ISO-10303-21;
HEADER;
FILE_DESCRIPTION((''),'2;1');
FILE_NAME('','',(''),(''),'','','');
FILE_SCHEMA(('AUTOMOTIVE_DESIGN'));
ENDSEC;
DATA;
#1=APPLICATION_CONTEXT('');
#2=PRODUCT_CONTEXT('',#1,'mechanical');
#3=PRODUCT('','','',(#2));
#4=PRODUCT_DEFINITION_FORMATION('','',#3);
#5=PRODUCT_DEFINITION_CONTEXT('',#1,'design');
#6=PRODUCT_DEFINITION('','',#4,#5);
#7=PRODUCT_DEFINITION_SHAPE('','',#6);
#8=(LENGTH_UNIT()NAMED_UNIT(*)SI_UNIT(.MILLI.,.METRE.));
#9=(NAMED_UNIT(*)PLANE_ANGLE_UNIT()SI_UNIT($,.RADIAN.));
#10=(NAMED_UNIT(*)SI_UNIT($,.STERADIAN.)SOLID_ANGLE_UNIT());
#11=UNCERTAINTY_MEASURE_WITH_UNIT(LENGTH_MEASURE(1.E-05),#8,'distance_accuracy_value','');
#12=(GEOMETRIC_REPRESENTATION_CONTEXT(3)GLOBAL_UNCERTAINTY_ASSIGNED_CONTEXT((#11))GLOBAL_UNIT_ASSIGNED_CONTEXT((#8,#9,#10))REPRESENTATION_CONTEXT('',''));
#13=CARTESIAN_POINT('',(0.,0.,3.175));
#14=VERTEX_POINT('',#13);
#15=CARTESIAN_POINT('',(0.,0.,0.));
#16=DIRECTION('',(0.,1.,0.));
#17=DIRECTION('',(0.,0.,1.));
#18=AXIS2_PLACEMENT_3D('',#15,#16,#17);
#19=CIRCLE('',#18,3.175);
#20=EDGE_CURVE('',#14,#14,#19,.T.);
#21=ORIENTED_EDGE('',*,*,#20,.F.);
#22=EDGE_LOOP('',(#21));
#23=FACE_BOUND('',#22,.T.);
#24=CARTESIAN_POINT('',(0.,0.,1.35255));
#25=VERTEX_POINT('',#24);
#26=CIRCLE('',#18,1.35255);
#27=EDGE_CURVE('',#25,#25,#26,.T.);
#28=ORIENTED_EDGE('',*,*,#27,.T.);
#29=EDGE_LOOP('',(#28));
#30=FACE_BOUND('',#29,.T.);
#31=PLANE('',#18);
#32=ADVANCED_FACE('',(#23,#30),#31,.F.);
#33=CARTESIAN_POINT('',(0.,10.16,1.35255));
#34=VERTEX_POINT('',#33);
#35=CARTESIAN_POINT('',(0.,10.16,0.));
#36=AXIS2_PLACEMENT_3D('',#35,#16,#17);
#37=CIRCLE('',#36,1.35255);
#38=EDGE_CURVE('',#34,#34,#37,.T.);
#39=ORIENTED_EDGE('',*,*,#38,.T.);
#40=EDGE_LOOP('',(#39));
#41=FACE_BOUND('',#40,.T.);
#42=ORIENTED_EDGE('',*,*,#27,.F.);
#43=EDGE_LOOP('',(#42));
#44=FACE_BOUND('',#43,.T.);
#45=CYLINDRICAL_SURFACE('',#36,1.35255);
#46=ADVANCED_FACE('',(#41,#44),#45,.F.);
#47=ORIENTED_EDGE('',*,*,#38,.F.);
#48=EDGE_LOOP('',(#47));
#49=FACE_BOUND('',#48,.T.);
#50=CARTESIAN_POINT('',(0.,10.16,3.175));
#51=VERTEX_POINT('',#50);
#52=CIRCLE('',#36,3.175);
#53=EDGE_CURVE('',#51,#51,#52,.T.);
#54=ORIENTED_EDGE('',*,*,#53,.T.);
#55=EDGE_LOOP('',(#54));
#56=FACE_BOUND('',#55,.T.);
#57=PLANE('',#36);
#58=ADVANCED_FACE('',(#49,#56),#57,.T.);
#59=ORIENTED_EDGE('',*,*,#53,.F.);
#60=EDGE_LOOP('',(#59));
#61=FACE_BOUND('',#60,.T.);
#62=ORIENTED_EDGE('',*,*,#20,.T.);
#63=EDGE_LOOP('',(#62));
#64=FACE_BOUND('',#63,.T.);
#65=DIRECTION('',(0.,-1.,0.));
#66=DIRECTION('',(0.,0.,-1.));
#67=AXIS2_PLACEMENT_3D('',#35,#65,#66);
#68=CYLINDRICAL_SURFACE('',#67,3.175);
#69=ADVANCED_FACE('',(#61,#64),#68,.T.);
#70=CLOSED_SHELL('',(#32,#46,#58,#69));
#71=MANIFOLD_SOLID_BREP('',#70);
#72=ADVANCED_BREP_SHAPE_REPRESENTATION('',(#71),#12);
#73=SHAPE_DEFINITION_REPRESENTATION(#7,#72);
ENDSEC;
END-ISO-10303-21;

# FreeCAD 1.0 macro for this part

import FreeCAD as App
import Part
import Sketcher
Q = App.Units.Quantity

doc = App.newDocument("Part")
params = doc.addObject("Spreadsheet::Sheet", "Params")
for row, (alias, value) in enumerate([
    ("sketch1_diameter", "0.25 in"),
    ("pad1_length", "0.4 in"),
    ("hole_diameter", "0.1065 in"),
], start=1):
    params.set(f"A{row}", alias)
    params.set(f"B{row}", "=" + value)
    params.setAlias(f"B{row}", alias)

body = doc.addObject("PartDesign::Body", "Body")

sketch1 = doc.addObject("Sketcher::SketchObject", "Sketch")
body.addObject(sketch1)
sketch1.AttachmentSupport = (doc.XZ_Plane, [""])
sketch1.MapMode = "FlatFace"
sketch1.addGeometry(Part.Circle(App.Vector(0, 0, 0), App.Vector(0, 0, 1), 3.2), False)
sketch1.addConstraint([
    Sketcher.Constraint("Coincident", 0, 3, -1, 1),
    Sketcher.Constraint("Diameter", 0, Q("0.25 in")),
])
sketch1.setExpression("Constraints[1]", "Params.sketch1_diameter")
pad1 = doc.addObject("PartDesign::Pad", "Pad")
body.addObject(pad1)
pad1.Profile = sketch1
pad1.setExpression("Length", "Params.pad1_length")
pad1.Reversed = True

sketch2 = doc.addObject("Sketcher::SketchObject", "Sketch001")
body.addObject(sketch2)
sketch2.AttachmentSupport = (doc.XZ_Plane, [""])
sketch2.MapMode = "FlatFace"
sketch2.AttachmentOffset = App.Placement(App.Vector(0, 0, -0.4 * 25.4), App.Rotation())
sketch2.addGeometry(Part.Circle(App.Vector(0, 0, 0), App.Vector(0, 0, 1), 1.4), False)
sketch2.addConstraint([
    Sketcher.Constraint("Coincident", 0, 3, -1, 1),
    Sketcher.Constraint("Diameter", 0, Q("0.1065 in")),
])
doc.recompute()
hole = doc.addObject("PartDesign::Hole", "Hole")
body.addObject(hole)
hole.Profile = sketch2
hole.ThreadType = "None"
hole.setExpression("Diameter", "Params.hole_diameter")
hole.DepthType = "ThroughAll"
hole.Reversed = True

doc.recompute()
